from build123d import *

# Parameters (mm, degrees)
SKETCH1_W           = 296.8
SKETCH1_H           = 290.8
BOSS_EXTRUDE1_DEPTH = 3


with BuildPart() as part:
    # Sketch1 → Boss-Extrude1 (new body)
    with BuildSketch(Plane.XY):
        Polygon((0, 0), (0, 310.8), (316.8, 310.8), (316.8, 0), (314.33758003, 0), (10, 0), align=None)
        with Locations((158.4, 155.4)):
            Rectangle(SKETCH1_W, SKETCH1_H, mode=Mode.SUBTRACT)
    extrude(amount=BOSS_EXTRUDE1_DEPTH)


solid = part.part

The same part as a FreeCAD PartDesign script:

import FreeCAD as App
import Part
import Sketcher
Q = App.Units.Quantity

doc = App.newDocument("Part")
body = doc.addObject("PartDesign::Body", "Body")

# Sketch on XY plane
sketch1 = body.newObject("Sketcher::SketchObject", "Sketch")
sketch1.AttachmentSupport = (doc.getObject("XY_Plane"), [""])
sketch1.MapMode = "FlatFace"
sketch1.addGeometry(Part.LineSegment(App.Vector(0, 311, 0), App.Vector(0, 0, 0)), False)
sketch1.addGeometry(Part.LineSegment(App.Vector(0, 0, 0), App.Vector(317, 0, 0)), False)
sketch1.addGeometry(Part.LineSegment(App.Vector(317, 0, 0), App.Vector(317, 311, 0)), False)
sketch1.addGeometry(Part.LineSegment(App.Vector(317, 311, 0), App.Vector(0, 311, 0)), False)
sketch1.addGeometry(Part.LineSegment(App.Vector(10, 10, 0), App.Vector(10, 301, 0)), False)
sketch1.addGeometry(Part.LineSegment(App.Vector(10, 301, 0), App.Vector(307, 301, 0)), False)
sketch1.addGeometry(Part.LineSegment(App.Vector(307, 301, 0), App.Vector(307, 10, 0)), False)
sketch1.addGeometry(Part.LineSegment(App.Vector(307, 10, 0), App.Vector(10, 10, 0)), False)
sketch1.addConstraint(Sketcher.Constraint("Coincident", 0, 2, 1, 1))
sketch1.addConstraint(Sketcher.Constraint("Coincident", 1, 2, 2, 1))
sketch1.addConstraint(Sketcher.Constraint("Coincident", 2, 2, 3, 1))
sketch1.addConstraint(Sketcher.Constraint("Coincident", 3, 2, 0, 1))
sketch1.addConstraint(Sketcher.Constraint("Coincident", 4, 2, 5, 1))
sketch1.addConstraint(Sketcher.Constraint("Coincident", 5, 2, 6, 1))
sketch1.addConstraint(Sketcher.Constraint("Coincident", 6, 2, 7, 1))
sketch1.addConstraint(Sketcher.Constraint("Coincident", 7, 2, 4, 1))
sketch1.addConstraint(Sketcher.Constraint("Vertical", 0))
sketch1.addConstraint(Sketcher.Constraint("Horizontal", 1))
sketch1.addConstraint(Sketcher.Constraint("Vertical", 2))
sketch1.addConstraint(Sketcher.Constraint("Horizontal", 3))
sketch1.addConstraint(Sketcher.Constraint("Vertical", 4))
sketch1.addConstraint(Sketcher.Constraint("Horizontal", 5))
sketch1.addConstraint(Sketcher.Constraint("Vertical", 6))
sketch1.addConstraint(Sketcher.Constraint("Horizontal", 7))
sketch1.addConstraint(Sketcher.Constraint("Coincident", 0, 2, -1, 1))
sketch1.addConstraint(Sketcher.Constraint("DistanceX", 1, 1, 1, 2, Q("316.8 mm")))
sketch1.addConstraint(Sketcher.Constraint("DistanceX", 5, 1, 5, 2, Q("296.8 mm")))
sketch1.addConstraint(Sketcher.Constraint("DistanceY", 0, 2, 0, 1, Q("310.8 mm")))
sketch1.addConstraint(Sketcher.Constraint("DistanceY", 4, 1, 4, 2, Q("290.8 mm")))
sketch1.addConstraint(Sketcher.Constraint("DistanceX", -1, 1, 4, 2, Q("10 mm")))
sketch1.addConstraint(Sketcher.Constraint("DistanceY", -1, 1, 6, 2, Q("10 mm")))
pad1 = body.newObject("PartDesign::Pad", "Pad")
pad1.Profile = sketch1
pad1.Length = 3

doc.recompute()
